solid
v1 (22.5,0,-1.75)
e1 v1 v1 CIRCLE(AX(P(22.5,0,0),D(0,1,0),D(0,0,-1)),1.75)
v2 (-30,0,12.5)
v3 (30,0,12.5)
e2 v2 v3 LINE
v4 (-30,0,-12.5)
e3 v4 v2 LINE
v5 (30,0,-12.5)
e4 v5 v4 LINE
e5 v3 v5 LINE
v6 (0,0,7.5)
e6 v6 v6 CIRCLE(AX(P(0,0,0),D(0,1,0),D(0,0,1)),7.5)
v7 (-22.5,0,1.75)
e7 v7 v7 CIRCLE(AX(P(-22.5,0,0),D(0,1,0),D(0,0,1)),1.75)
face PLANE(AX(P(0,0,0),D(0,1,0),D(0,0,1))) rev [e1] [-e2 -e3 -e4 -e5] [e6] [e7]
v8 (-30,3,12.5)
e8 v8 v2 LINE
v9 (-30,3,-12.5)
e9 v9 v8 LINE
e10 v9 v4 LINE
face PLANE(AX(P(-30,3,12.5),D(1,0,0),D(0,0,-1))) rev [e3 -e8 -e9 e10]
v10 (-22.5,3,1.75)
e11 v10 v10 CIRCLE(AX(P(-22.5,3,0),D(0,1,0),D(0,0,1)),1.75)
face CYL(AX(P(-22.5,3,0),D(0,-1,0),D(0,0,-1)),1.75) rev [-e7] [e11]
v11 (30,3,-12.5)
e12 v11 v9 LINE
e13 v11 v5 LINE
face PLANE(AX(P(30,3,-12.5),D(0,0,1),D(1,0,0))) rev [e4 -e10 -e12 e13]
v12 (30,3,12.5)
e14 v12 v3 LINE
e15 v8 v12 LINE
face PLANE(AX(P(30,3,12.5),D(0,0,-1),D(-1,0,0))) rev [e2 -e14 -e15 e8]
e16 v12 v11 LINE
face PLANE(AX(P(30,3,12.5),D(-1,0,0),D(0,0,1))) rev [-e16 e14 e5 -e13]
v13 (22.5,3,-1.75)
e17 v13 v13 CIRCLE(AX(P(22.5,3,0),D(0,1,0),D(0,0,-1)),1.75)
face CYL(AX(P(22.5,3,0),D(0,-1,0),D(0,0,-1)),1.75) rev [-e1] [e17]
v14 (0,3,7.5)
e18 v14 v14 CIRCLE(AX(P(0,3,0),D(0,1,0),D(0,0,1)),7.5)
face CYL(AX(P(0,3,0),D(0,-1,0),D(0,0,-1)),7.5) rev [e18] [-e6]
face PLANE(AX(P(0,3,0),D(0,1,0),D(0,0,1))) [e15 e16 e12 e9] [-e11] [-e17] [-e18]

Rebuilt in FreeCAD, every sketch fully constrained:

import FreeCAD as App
import Part
import Sketcher

V = App.Vector
Q = App.Units.Quantity

doc = App.newDocument("Part")
body = doc.addObject("PartDesign::Body", "Body")

# Sketch on XZ plane
sketch1 = body.newObject("Sketcher::SketchObject", "Sketch")
sketch1.AttachmentSupport = (doc.getObject("XZ_Plane"), [""])
sketch1.MapMode = "FlatFace"
sketch1.addGeometry([
    Part.LineSegment(V(-30, -12.5, 0), V(-30, 12.5, 0)),  # 0
    Part.LineSegment(V(-30, 12.5, 0), V(30, 12.5, 0)),  # 1
    Part.LineSegment(V(30, 12.5, 0), V(30, -12.5, 0)),  # 2
    Part.LineSegment(V(30, -12.5, 0), V(-30, -12.5, 0)),  # 3
    Part.Circle(V(-22.5, 0, 0), V(0, 0, 1), 1.8),  # 4
    Part.Circle(V(0, 0, 0), V(0, 0, 1), 7.5),  # 5
    Part.Circle(V(22.5, 0, 0), V(0, 0, 1), 1.8),  # 6
], False)
sketch1.addConstraint([
    Sketcher.Constraint("Coincident", 0, 2, 1, 1),
    Sketcher.Constraint("Coincident", 1, 2, 2, 1),
    Sketcher.Constraint("Coincident", 2, 2, 3, 1),
    Sketcher.Constraint("Coincident", 3, 2, 0, 1),
    Sketcher.Constraint("Vertical", 0),
    Sketcher.Constraint("Horizontal", 1),
    Sketcher.Constraint("Vertical", 2),
    Sketcher.Constraint("Horizontal", 3),
    Sketcher.Constraint("Coincident", 5, 3, -1, 1),
    Sketcher.Constraint("Equal", 4, 6),
    Sketcher.Constraint("Symmetric", 4, 3, 6, 3, -1, 1),
    Sketcher.Constraint("Symmetric", 0, 2, 2, 2, -1, 1),
    Sketcher.Constraint("PointOnObject", 4, 3, -1),
    Sketcher.Constraint("Diameter", 5, Q("15 mm")),
    Sketcher.Constraint("Diameter", 4, Q("3.5 mm")),
    Sketcher.Constraint("DistanceX", 1, 1, 1, 2, Q("60 mm")),
    Sketcher.Constraint("DistanceY", 0, 1, 0, 2, Q("25 mm")),
    Sketcher.Constraint("DistanceX", 4, 3, 6, 3, Q("45 mm")),
])
pad1 = body.newObject("PartDesign::Pad", "Pad")
pad1.Profile = sketch1
pad1.Length = 3
pad1.Reversed = True

doc.recompute()
